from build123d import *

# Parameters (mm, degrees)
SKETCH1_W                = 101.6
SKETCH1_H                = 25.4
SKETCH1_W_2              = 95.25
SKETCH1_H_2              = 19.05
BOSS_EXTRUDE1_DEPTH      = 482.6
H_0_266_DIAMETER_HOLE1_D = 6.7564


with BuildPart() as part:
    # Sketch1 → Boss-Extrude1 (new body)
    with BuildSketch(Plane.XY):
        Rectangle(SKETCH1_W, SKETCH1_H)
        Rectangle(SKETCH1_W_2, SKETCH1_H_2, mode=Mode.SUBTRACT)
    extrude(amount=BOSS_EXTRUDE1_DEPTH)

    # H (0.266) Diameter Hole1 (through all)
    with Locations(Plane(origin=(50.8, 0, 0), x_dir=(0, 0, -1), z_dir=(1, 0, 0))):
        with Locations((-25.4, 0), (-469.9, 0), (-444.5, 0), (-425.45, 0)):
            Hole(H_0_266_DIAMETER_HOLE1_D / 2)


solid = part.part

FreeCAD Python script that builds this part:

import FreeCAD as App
import Part
import Sketcher
Q = App.Units.Quantity


def add_polygon(sketch, points):
    """Adds a closed chain of lines whose ends are joined by coincident constraints."""
    first, n = sketch.GeometryCount, len(points)
    for a, b in zip(points, points[1:] + points[:1]):
        sketch.addGeometry(Part.LineSegment(App.Vector(*a, 0), App.Vector(*b, 0)), False)
    for i in range(n):
        sketch.addConstraint(Sketcher.Constraint("Coincident", first + i, 2, first + (i + 1) % n, 1))

doc = App.newDocument("Part")
params = doc.addObject("Spreadsheet::Sheet", "Params")
for row, (alias, value) in enumerate([
    ("sketch1_width", "4 in"),
    ("sketch1_height", "1 in"),
    ("sketch1_width2", "3.75 in"),
    ("sketch1_height2", "0.75 in"),
    ("pad1_length", "19 in"),
    ("sketch2_diameter", "0.266 in"),
    ("hole_diameter", "0.266 in"),
], start=1):
    params.set(f"A{row}", alias)
    params.set(f"B{row}", "=" + value)
    params.setAlias(f"B{row}", alias)

body = doc.addObject("PartDesign::Body", "Body")

sketch1 = body.newObject("Sketcher::SketchObject", "Sketch")
sketch1.AttachmentSupport = (doc.getObject("XY_Plane"), [""])
sketch1.MapMode = "FlatFace"
add_polygon(sketch1, [(-51, 13), (-51, -13), (51, -13), (51, 13)])
add_polygon(sketch1, [(48, -10), (-48, -10), (-48, 10), (48, 10)])
sketch1.addConstraint(Sketcher.Constraint("Vertical", 0))
sketch1.addConstraint(Sketcher.Constraint("Horizontal", 1))
sketch1.addConstraint(Sketcher.Constraint("Vertical", 2))
sketch1.addConstraint(Sketcher.Constraint("Horizontal", 3))
sketch1.addConstraint(Sketcher.Constraint("Horizontal", 4))
sketch1.addConstraint(Sketcher.Constraint("Vertical", 5))
sketch1.addConstraint(Sketcher.Constraint("Horizontal", 6))
sketch1.addConstraint(Sketcher.Constraint("Vertical", 7))
sketch1.addConstraint(Sketcher.Constraint("Symmetric", 0, 2, 2, 2, -1, 1))
sketch1.addConstraint(Sketcher.Constraint("Symmetric", 4, 2, 6, 2, -1, 1))
sketch1.addConstraint(Sketcher.Constraint("DistanceX", 1, 1, 1, 2, Q("4 in")))
sketch1.addConstraint(Sketcher.Constraint("DistanceY", 0, 2, 0, 1, Q("1 in")))
sketch1.addConstraint(Sketcher.Constraint("DistanceX", 4, 2, 4, 1, Q("3.75 in")))
sketch1.addConstraint(Sketcher.Constraint("DistanceY", 5, 1, 5, 2, Q("0.75 in")))
sketch1.setExpression("Constraints[18]", "Params.sketch1_width")
sketch1.setExpression("Constraints[19]", "Params.sketch1_height")
sketch1.setExpression("Constraints[20]", "Params.sketch1_width2")
sketch1.setExpression("Constraints[21]", "Params.sketch1_height2")
pad1 = body.newObject("PartDesign::Pad", "Pad")
pad1.Profile = sketch1
pad1.setExpression("Length", "Params.pad1_length")

sketch2 = body.newObject("Sketcher::SketchObject", "Sketch001")
sketch2.AttachmentSupport = (doc.getObject("YZ_Plane"), [""])
sketch2.MapMode = "FlatFace"
sketch2.AttachmentOffset = App.Placement(App.Vector(0, 0, 2 * 25.4), App.Rotation())
sketch2.addGeometry(Part.Circle(App.Vector(0, 25.4, 0), App.Vector(0, 0, 1), 3.4), False)
sketch2.addGeometry(Part.Circle(App.Vector(0, 469.9, 0), App.Vector(0, 0, 1), 3.4), False)
sketch2.addGeometry(Part.Circle(App.Vector(0, 444.5, 0), App.Vector(0, 0, 1), 3.4), False)
sketch2.addGeometry(Part.Circle(App.Vector(0, 425.4, 0), App.Vector(0, 0, 1), 3.4), False)
sketch2.addConstraint(Sketcher.Constraint("Equal", 0, 1))
sketch2.addConstraint(Sketcher.Constraint("Equal", 1, 2))
sketch2.addConstraint(Sketcher.Constraint("Equal", 2, 3))
sketch2.addConstraint(Sketcher.Constraint("PointOnObject", 0, 3, -2))
sketch2.addConstraint(Sketcher.Constraint("PointOnObject", 1, 3, -2))
sketch2.addConstraint(Sketcher.Constraint("PointOnObject", 2, 3, -2))
sketch2.addConstraint(Sketcher.Constraint("PointOnObject", 3, 3, -2))
sketch2.addConstraint(Sketcher.Constraint("Diameter", 0, Q("0.266 in")))
sketch2.addConstraint(Sketcher.Constraint("DistanceY", -1, 1, 0, 3, Q("1 in")))
sketch2.addConstraint(Sketcher.Constraint("DistanceY", 2, 3, 1, 3, Q("1 in")))
sketch2.addConstraint(Sketcher.Constraint("DistanceY", -1, 1, 1, 3, Q("18.5 in")))
sketch2.addConstraint(Sketcher.Constraint("DistanceY", -1, 1, 3, 3, Q("16.75 in")))
sketch2.setExpression("Constraints[7]", "Params.sketch2_diameter")
doc.recompute()
hole = body.newObject("PartDesign::Hole", "Hole")
hole.Profile = sketch2
hole.ThreadType = "None"
hole.setExpression("Diameter", "Params.hole_diameter")
hole.DepthType = "ThroughAll"

doc.recompute()
